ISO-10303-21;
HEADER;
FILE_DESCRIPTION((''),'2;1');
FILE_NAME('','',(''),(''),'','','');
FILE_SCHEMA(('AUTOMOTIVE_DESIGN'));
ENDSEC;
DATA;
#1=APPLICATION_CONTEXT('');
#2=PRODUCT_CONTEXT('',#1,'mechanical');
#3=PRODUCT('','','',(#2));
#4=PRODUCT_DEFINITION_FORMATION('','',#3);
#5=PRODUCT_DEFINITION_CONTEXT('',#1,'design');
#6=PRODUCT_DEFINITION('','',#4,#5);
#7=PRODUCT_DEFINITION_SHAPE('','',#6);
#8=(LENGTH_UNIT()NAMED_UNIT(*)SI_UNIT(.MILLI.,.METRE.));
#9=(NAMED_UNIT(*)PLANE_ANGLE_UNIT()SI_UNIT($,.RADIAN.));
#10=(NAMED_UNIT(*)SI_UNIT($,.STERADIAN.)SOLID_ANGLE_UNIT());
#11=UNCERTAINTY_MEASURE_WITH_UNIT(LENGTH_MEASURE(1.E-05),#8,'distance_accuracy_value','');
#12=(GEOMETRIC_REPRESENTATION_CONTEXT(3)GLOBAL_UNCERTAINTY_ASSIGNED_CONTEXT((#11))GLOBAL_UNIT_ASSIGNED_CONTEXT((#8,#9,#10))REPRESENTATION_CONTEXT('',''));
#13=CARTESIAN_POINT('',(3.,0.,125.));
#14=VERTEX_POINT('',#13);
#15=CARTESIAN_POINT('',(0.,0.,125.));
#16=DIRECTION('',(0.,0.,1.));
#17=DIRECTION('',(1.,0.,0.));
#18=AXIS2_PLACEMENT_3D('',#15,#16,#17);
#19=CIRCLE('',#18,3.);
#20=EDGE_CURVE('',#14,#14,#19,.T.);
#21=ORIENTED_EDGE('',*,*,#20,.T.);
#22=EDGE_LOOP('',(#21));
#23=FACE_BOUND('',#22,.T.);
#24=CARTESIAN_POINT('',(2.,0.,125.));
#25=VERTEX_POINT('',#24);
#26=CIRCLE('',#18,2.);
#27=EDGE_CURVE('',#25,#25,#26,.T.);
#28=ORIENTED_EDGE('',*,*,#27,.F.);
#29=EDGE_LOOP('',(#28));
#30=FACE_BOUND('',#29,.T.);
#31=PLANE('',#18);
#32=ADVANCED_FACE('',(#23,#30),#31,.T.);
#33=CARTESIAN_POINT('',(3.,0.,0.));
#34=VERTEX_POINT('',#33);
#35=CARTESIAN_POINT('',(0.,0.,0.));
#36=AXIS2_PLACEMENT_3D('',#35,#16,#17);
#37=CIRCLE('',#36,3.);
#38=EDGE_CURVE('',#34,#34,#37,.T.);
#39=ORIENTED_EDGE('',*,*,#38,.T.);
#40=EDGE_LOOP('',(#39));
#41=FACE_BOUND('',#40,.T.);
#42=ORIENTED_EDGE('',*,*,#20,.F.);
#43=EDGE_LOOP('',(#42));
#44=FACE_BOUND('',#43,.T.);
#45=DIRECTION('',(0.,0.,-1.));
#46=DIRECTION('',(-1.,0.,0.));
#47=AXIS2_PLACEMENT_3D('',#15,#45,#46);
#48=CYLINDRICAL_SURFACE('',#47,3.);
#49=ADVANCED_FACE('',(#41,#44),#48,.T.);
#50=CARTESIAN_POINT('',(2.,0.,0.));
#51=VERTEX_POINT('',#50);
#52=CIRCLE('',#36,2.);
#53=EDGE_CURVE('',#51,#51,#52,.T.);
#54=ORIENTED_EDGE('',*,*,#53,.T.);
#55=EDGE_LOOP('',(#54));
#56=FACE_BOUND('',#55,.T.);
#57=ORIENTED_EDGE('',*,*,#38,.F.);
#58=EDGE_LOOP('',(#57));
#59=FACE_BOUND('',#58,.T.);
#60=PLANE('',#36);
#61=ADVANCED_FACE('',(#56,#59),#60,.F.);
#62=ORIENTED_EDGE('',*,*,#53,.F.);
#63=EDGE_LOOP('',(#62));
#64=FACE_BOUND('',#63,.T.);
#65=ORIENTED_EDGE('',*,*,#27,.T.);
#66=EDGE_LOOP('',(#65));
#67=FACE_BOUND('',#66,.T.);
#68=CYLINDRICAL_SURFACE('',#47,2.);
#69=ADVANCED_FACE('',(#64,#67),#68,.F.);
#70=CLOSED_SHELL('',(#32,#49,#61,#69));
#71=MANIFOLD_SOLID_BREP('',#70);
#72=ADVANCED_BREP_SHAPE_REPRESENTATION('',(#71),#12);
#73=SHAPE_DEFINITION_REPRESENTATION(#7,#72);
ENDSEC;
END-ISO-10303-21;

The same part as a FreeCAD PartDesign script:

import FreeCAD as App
import Part
import Sketcher

V = App.Vector
Q = App.Units.Quantity

doc = App.newDocument("Part")
body = doc.addObject("PartDesign::Body", "Body")

# Sketch on XY plane
sketch1 = doc.addObject("Sketcher::SketchObject", "Sketch")
body.addObject(sketch1)
sketch1.AttachmentSupport = (doc.XY_Plane, [""])
sketch1.MapMode = "FlatFace"
sketch1.addGeometry(Part.Circle(V(0, 0, 0), V(0, 0, 1), 3), False)
sketch1.addGeometry(Part.Circle(V(0, 0, 0), V(0, 0, 1), 2), False)
sketch1.addConstraint(Sketcher.Constraint("Coincident", 0, 3, -1, 1))
sketch1.addConstraint(Sketcher.Constraint("Coincident", 1, 3, -1, 1))
sketch1.addConstraint(Sketcher.Constraint("Diameter", 0, Q("6 mm")))
sketch1.addConstraint(Sketcher.Constraint("Diameter", 1, Q("4 mm")))
pad1 = doc.addObject("PartDesign::Pad", "Pad")
body.addObject(pad1)
pad1.Profile = sketch1
pad1.Length = 125

doc.recompute()
